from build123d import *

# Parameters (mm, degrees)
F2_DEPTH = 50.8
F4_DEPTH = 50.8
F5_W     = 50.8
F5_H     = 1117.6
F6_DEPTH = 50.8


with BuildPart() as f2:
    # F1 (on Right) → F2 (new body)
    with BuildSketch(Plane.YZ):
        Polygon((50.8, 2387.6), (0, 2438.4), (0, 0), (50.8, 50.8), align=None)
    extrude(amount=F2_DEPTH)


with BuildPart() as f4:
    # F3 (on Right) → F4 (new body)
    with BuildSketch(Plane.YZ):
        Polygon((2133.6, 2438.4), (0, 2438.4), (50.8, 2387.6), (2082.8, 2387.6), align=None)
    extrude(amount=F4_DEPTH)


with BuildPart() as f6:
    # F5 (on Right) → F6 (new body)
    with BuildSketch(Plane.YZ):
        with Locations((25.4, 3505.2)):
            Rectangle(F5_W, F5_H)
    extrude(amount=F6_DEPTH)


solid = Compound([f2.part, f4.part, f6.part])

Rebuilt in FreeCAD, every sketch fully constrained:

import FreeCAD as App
import Part
import Sketcher
Q = App.Units.Quantity


def add_polygon(sketch, points):
    """Adds a closed chain of lines whose ends are joined by coincident constraints."""
    first, n = sketch.GeometryCount, len(points)
    for a, b in zip(points, points[1:] + points[:1]):
        sketch.addGeometry(Part.LineSegment(App.Vector(*a, 0), App.Vector(*b, 0)), False)
    for i in range(n):
        sketch.addConstraint(Sketcher.Constraint("Coincident", first + i, 2, first + (i + 1) % n, 1))

doc = App.newDocument("Part")
body = doc.addObject("PartDesign::Body", "Body")

sketch1 = body.newObject("Sketcher::SketchObject", "Sketch")
sketch1.AttachmentSupport = (doc.getObject("YZ_Plane"), [""])
sketch1.MapMode = "FlatFace"
add_polygon(sketch1, [(51, 2388), (0, 2438), (0, 0), (51, 51)])
sketch1.addConstraint([
    Sketcher.Constraint("Vertical", 1),
    Sketcher.Constraint("Vertical", 3),
    Sketcher.Constraint("Coincident", 1, 2, -1, 1),
    Sketcher.Constraint("Perpendicular", 0, 2),
    Sketcher.Constraint("Equal", 0, 2),
    Sketcher.Constraint("DistanceY", 1, 2, 1, 1, Q("96 in")),
    Sketcher.Constraint("DistanceY", 3, 1, 3, 2, Q("92 in")),
])
pad1 = body.newObject("PartDesign::Pad", "Pad")
pad1.Profile = sketch1
pad1.Length = Q("2 in")
body2 = doc.addObject("PartDesign::Body", "Body001")

sketch2 = body2.newObject("Sketcher::SketchObject", "Sketch001")
sketch2.AttachmentSupport = (doc.getObject("YZ_Plane001"), [""])
sketch2.MapMode = "FlatFace"
add_polygon(sketch2, [(2134, 2438), (0, 2438), (51, 2388), (2083, 2388)])
sketch2.addConstraint([
    Sketcher.Constraint("Horizontal", 0),
    Sketcher.Constraint("Horizontal", 2),
    Sketcher.Constraint("PointOnObject", 0, 2, -2),
    Sketcher.Constraint("Perpendicular", 1, 3),
    Sketcher.Constraint("Equal", 1, 3),
    Sketcher.Constraint("DistanceX", 0, 2, 0, 1, Q("84 in")),
    Sketcher.Constraint("DistanceX", 2, 1, 2, 2, Q("80 in")),
    Sketcher.Constraint("DistanceY", -1, 1, 0, 2, Q("96 in")),
])
pad2 = body2.newObject("PartDesign::Pad", "Pad001")
pad2.Profile = sketch2
pad2.Length = Q("2 in")
body3 = doc.addObject("PartDesign::Body", "Body002")

sketch3 = body3.newObject("Sketcher::SketchObject", "Sketch002")
sketch3.AttachmentSupport = (doc.getObject("YZ_Plane002"), [""])
sketch3.MapMode = "FlatFace"
add_polygon(sketch3, [(0, 4064), (0, 2946), (51, 2946), (51, 4064)])
sketch3.addConstraint([
    Sketcher.Constraint("Vertical", 0),
    Sketcher.Constraint("Horizontal", 1),
    Sketcher.Constraint("Vertical", 2),
    Sketcher.Constraint("Horizontal", 3),
    Sketcher.Constraint("PointOnObject", 0, 2, -2),
    Sketcher.Constraint("DistanceX", 1, 1, 1, 2, Q("2 in")),
    Sketcher.Constraint("DistanceY", 0, 2, 0, 1, Q("44 in")),
    Sketcher.Constraint("DistanceY", -1, 1, 0, 2, Q("116 in")),
])
pad3 = body3.newObject("PartDesign::Pad", "Pad002")
pad3.Profile = sketch3
pad3.Length = Q("2 in")

doc.recompute()
